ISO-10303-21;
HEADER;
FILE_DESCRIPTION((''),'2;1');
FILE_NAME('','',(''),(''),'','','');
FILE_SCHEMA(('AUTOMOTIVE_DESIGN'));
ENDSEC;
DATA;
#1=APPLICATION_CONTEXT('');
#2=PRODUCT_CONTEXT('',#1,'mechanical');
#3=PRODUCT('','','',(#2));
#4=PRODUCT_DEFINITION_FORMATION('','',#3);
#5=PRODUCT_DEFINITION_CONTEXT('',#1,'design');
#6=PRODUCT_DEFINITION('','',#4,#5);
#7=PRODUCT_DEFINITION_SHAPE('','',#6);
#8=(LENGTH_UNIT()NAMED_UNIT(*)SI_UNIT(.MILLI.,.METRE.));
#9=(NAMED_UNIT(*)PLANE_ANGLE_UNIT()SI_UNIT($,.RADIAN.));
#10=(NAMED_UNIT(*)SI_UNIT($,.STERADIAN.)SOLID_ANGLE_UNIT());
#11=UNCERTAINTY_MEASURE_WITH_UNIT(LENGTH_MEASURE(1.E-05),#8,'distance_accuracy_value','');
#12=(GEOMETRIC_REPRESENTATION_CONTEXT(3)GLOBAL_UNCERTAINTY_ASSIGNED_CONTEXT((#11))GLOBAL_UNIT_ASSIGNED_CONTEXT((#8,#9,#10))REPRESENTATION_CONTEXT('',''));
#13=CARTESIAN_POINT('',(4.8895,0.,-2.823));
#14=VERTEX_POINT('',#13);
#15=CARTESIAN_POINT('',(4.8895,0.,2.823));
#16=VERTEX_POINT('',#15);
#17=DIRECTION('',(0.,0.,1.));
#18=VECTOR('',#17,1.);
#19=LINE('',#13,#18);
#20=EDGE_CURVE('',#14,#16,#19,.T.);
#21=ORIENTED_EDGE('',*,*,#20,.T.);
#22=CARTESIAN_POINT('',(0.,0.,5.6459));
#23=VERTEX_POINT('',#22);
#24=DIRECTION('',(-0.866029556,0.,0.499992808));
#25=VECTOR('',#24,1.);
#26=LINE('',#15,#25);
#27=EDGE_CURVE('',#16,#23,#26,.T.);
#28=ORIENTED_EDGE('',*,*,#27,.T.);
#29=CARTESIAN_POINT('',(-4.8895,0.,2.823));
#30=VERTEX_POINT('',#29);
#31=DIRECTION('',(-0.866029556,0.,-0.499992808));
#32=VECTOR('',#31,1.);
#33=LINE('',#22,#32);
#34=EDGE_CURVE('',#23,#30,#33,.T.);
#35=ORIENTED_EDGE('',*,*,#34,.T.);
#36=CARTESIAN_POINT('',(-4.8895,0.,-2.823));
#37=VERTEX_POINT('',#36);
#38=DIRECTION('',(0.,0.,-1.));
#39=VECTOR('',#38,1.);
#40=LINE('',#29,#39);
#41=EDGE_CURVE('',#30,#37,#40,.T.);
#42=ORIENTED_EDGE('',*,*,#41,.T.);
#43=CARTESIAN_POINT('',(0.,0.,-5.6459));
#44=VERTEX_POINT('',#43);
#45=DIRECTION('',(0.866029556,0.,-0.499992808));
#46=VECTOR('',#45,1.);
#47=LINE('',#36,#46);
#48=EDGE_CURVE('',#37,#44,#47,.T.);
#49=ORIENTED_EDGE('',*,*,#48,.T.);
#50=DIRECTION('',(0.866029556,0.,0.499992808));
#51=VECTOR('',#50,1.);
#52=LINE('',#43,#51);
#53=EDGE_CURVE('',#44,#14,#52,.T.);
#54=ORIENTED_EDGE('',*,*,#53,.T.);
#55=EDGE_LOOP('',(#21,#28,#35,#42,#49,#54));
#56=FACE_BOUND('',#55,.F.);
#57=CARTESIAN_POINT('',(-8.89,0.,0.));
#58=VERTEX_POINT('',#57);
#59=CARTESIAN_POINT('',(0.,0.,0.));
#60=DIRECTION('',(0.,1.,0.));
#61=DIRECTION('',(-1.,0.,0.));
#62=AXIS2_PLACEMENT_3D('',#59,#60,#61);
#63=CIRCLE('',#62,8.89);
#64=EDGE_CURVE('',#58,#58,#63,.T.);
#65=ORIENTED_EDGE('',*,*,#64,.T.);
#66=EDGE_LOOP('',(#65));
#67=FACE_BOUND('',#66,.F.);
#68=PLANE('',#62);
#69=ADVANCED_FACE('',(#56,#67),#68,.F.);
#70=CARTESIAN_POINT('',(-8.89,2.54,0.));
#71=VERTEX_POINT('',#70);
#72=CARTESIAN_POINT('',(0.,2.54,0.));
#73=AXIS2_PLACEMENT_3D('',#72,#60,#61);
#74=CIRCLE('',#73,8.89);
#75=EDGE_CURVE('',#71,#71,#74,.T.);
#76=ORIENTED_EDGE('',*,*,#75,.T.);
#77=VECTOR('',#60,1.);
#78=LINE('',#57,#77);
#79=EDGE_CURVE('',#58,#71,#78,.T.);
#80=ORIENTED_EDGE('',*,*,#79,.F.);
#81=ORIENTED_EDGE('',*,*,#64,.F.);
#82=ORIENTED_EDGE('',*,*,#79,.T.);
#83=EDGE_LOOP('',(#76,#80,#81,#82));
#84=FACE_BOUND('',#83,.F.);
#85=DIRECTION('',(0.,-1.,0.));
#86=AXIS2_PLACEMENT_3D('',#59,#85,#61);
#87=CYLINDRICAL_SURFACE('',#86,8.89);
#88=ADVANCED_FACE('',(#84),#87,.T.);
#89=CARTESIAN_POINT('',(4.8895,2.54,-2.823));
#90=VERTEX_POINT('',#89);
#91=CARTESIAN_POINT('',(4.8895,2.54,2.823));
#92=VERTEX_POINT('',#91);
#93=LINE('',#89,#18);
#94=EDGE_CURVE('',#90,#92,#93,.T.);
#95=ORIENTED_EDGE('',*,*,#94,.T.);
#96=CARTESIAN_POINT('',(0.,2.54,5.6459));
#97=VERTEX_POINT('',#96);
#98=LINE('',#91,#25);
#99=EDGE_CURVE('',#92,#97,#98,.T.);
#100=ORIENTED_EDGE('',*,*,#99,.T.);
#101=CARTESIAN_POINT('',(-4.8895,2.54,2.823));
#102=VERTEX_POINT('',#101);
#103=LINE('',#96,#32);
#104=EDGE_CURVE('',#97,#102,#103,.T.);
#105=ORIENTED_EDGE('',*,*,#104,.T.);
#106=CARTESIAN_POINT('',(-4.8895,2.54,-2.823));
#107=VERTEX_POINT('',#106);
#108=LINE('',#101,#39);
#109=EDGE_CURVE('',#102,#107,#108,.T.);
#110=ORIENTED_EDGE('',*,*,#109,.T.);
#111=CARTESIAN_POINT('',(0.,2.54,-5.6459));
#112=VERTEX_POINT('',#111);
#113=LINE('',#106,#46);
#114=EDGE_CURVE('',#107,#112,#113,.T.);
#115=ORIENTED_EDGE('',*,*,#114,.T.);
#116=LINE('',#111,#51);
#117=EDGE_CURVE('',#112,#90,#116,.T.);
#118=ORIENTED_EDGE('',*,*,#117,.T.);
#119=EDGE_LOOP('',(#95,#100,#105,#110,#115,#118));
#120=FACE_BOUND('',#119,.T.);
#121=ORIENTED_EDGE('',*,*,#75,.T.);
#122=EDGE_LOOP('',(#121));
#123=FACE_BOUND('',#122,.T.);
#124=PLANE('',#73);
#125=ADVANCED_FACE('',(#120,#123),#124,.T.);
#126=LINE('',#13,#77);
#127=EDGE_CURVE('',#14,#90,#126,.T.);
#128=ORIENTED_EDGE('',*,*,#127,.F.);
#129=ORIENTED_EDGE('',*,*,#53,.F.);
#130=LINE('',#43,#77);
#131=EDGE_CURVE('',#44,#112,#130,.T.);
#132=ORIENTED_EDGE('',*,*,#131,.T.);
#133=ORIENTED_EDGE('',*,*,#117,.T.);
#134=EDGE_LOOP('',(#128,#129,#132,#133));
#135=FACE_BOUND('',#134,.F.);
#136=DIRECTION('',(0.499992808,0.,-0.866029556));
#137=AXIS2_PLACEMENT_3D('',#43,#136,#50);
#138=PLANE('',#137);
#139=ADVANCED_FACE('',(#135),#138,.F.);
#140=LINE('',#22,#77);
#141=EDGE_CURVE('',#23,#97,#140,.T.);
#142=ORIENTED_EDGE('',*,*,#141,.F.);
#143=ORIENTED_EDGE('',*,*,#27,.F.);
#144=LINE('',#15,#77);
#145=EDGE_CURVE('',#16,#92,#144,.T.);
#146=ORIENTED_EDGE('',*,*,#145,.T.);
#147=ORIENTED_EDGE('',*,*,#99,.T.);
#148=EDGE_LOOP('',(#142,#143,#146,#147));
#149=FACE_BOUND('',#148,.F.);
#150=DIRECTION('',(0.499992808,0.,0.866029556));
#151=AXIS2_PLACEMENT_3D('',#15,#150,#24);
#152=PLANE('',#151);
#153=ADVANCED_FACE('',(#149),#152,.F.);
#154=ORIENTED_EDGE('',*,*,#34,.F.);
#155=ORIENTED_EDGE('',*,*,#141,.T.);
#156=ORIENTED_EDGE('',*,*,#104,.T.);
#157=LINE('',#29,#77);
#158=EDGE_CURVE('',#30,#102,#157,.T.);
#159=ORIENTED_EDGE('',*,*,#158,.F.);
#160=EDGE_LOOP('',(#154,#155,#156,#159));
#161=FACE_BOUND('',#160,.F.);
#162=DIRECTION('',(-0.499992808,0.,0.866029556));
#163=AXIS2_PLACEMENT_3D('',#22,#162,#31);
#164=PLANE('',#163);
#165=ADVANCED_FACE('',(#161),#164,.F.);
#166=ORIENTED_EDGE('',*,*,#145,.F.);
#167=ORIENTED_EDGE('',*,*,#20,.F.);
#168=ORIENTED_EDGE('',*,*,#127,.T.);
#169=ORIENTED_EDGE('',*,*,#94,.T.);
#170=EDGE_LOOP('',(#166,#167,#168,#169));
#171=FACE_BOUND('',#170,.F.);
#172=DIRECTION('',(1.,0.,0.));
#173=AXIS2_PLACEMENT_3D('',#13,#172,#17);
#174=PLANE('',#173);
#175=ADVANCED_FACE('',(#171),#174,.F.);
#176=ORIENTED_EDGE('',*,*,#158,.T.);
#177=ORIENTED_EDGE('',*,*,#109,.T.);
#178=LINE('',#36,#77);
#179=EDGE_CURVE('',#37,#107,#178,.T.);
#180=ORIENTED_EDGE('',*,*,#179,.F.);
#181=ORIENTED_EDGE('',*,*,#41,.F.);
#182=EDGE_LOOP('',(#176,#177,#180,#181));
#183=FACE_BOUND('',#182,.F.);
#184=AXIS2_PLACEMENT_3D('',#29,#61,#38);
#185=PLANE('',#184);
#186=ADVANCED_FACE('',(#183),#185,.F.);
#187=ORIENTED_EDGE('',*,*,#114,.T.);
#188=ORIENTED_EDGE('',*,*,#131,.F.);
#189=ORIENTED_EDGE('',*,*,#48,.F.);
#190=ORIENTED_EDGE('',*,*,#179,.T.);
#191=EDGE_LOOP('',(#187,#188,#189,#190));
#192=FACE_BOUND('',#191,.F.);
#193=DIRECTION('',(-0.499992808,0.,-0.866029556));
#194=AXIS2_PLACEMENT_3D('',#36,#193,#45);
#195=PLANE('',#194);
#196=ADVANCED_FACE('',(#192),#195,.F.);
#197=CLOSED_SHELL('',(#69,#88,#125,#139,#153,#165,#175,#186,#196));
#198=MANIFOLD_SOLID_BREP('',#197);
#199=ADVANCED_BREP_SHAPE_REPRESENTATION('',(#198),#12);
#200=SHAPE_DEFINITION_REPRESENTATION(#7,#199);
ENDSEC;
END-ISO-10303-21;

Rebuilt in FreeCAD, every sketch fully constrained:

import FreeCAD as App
import Part
import Sketcher
Q = App.Units.Quantity

doc = App.newDocument("Part")
body = doc.addObject("PartDesign::Body", "Body")

# Sketch on XZ plane
sketch1 = body.newObject("Sketcher::SketchObject", "Sketch")
sketch1.AttachmentSupport = (doc.getObject("XZ_Plane"), [""])
sketch1.MapMode = "FlatFace"
sketch1.addGeometry([
    Part.Circle(App.Vector(0, 0, 0), App.Vector(0, 0, 1), 9),  # 0
    Part.LineSegment(App.Vector(-5, 3, 0), App.Vector(-5, -3, 0)),  # 1
    Part.LineSegment(App.Vector(-5, -3, 0), App.Vector(0, -6, 0)),  # 2
    Part.LineSegment(App.Vector(0, -6, 0), App.Vector(5, -3, 0)),  # 3
    Part.LineSegment(App.Vector(5, -3, 0), App.Vector(5, 3, 0)),  # 4
    Part.LineSegment(App.Vector(5, 3, 0), App.Vector(0, 6, 0)),  # 5
    Part.LineSegment(App.Vector(0, 6, 0), App.Vector(-5, 3, 0)),  # 6
], False)
sketch1.addConstraint([
    Sketcher.Constraint("Coincident", 1, 2, 2, 1),
    Sketcher.Constraint("Coincident", 2, 2, 3, 1),
    Sketcher.Constraint("Coincident", 3, 2, 4, 1),
    Sketcher.Constraint("Coincident", 4, 2, 5, 1),
    Sketcher.Constraint("Coincident", 5, 2, 6, 1),
    Sketcher.Constraint("Coincident", 6, 2, 1, 1),
    Sketcher.Constraint("Vertical", 1),
    Sketcher.Constraint("Vertical", 4),
    Sketcher.Constraint("Coincident", 0, 3, -1, 1),
    Sketcher.Constraint("Symmetric", 1, 2, 4, 2, -1, 1),
    Sketcher.Constraint("Symmetric", 2, 2, 5, 2, -1, 1),
    Sketcher.Constraint("PointOnObject", 2, 2, -2),
    Sketcher.Constraint("Parallel", 3, 6),
    Sketcher.Constraint("Horizontal", 1, 2, 3, 2),
    Sketcher.Constraint("Diameter", 0, Q("0.7 in")),
    Sketcher.Constraint("Angle", 2, Q("-29.9995 deg")),
    Sketcher.Constraint("DistanceX", 1, 2, 3, 2, Q("0.385 in")),
    Sketcher.Constraint("DistanceY", 1, 2, 1, 1, Q("5.646 mm")),
])
pad1 = body.newObject("PartDesign::Pad", "Pad")
pad1.Profile = sketch1
pad1.Length = Q("0.1 in")
pad1.Reversed = True

doc.recompute()
